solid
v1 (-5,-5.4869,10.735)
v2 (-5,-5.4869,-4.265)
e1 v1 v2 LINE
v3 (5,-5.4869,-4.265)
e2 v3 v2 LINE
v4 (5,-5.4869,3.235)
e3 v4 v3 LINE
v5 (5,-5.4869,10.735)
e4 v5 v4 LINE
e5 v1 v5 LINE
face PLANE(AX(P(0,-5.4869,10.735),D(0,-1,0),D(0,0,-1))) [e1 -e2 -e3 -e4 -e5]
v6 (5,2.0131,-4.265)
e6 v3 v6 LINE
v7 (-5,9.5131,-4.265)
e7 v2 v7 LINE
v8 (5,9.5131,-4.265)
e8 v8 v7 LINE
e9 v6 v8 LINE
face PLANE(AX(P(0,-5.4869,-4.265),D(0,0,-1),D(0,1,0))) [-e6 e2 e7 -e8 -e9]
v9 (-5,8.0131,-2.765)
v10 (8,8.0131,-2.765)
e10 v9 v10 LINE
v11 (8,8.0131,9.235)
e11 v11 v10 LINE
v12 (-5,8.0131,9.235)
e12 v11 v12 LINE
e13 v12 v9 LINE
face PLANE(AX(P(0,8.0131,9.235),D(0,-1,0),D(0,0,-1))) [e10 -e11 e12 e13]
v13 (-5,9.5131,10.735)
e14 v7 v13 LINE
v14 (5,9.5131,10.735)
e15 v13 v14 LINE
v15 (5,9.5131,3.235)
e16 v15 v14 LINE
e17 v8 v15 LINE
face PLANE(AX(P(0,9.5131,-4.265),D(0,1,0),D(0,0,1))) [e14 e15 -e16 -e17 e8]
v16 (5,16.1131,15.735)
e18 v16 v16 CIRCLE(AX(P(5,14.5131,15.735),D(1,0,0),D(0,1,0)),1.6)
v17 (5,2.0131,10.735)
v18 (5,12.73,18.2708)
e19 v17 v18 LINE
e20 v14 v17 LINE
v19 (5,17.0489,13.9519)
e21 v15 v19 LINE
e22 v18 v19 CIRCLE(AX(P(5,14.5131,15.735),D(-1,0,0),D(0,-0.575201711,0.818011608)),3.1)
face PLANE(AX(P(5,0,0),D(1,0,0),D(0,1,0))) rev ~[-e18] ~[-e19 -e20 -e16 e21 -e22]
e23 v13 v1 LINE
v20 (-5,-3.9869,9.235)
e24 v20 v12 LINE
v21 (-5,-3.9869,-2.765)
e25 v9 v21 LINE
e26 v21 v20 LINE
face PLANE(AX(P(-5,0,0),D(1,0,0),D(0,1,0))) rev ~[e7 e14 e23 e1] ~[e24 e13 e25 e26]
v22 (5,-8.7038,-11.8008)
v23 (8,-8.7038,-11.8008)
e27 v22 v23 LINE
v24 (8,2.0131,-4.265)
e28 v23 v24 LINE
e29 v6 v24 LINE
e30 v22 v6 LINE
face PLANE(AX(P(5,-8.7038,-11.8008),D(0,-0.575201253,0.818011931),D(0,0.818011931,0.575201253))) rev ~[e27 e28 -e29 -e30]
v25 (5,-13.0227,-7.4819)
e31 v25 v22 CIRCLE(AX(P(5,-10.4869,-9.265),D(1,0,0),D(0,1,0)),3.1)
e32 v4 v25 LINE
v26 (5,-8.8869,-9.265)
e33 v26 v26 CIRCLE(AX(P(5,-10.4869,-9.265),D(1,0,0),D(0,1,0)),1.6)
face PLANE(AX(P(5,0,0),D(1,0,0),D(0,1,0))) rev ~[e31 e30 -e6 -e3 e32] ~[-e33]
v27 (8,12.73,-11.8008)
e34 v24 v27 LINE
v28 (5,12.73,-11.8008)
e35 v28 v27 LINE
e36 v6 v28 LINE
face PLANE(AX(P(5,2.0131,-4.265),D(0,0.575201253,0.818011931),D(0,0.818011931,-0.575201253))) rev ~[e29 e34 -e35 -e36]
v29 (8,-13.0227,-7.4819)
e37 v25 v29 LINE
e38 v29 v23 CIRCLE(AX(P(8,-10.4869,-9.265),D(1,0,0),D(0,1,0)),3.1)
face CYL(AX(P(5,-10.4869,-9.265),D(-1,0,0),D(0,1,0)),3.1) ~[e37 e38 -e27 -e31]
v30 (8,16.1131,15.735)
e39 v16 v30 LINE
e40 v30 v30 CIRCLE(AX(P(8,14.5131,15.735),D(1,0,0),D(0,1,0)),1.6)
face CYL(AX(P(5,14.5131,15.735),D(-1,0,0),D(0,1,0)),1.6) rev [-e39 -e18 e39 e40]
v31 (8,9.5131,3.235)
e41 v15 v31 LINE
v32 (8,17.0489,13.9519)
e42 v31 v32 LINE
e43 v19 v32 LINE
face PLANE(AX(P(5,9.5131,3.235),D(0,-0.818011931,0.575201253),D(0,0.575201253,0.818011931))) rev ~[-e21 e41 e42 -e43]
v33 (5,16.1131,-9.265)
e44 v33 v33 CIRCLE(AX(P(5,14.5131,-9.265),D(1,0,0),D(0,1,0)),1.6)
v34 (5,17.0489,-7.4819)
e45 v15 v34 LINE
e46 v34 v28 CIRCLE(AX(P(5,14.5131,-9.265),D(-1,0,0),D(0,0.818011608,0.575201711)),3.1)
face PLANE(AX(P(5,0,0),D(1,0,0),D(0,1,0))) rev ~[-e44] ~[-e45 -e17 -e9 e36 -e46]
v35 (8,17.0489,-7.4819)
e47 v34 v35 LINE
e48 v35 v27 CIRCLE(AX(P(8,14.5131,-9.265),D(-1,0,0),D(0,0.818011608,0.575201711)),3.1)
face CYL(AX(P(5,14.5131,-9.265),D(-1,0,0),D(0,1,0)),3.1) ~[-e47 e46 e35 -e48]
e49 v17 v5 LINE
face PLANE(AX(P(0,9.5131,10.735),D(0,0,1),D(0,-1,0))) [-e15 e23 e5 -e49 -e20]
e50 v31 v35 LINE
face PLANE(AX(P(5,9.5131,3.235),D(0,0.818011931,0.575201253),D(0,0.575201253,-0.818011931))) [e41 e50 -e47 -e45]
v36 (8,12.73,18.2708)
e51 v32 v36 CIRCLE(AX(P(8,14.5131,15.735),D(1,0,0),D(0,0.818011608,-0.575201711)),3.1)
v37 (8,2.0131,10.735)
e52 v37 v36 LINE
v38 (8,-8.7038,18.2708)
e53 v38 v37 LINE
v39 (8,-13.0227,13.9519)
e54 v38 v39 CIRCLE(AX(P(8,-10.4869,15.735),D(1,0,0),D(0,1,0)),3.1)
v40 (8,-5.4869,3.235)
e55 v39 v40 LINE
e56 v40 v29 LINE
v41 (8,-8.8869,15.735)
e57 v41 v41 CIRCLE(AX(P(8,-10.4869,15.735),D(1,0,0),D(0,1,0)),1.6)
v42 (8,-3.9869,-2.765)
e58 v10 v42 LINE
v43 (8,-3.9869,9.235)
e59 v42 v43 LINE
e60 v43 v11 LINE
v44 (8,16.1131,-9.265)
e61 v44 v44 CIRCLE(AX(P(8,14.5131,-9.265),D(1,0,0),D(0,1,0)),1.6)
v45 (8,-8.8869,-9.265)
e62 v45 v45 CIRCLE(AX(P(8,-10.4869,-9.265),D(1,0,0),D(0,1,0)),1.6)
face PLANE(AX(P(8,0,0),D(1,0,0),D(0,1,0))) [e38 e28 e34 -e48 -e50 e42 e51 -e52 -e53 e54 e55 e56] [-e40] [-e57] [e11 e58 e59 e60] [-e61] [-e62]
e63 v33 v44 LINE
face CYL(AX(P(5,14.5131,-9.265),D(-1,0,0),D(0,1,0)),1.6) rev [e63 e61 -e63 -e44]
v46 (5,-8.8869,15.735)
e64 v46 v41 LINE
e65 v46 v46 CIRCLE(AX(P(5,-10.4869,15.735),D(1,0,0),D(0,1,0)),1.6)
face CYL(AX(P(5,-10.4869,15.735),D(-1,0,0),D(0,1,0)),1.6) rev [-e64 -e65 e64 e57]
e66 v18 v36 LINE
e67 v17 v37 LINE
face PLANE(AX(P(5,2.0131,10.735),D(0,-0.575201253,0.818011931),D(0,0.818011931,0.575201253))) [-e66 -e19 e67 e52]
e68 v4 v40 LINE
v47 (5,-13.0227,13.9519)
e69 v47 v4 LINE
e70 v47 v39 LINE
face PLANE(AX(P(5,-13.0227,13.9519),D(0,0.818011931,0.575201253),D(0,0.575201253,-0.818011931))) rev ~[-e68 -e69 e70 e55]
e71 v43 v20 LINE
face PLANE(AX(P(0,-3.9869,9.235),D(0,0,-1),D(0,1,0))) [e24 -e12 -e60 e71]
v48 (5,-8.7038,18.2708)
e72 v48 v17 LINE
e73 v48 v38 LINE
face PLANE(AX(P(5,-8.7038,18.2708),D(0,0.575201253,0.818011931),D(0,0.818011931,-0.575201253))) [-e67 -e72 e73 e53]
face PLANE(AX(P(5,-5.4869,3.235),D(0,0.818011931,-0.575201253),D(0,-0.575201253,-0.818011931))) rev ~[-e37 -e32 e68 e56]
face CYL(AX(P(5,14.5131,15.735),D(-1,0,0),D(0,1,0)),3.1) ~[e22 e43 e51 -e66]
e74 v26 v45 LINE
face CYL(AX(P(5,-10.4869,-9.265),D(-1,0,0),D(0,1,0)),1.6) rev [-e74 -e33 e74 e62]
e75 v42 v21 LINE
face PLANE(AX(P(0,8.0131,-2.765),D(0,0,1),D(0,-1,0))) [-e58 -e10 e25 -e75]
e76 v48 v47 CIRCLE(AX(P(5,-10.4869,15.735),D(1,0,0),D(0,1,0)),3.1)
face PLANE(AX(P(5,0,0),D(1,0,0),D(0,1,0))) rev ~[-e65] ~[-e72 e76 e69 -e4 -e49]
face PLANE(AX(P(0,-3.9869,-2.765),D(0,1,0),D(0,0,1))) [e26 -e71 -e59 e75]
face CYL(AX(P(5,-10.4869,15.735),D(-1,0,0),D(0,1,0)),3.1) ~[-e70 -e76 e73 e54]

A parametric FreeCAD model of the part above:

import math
import FreeCAD as App
import Part
import Sketcher


def add_polygon(sketch, points):
    """Adds a closed chain of lines whose ends are joined by coincident constraints."""
    first, n = sketch.GeometryCount, len(points)
    for a, b in zip(points, points[1:] + points[:1]):
        sketch.addGeometry(Part.LineSegment(App.Vector(*a, 0), App.Vector(*b, 0)), False)
    for i in range(n):
        sketch.addConstraint(Sketcher.Constraint("Coincident", first + i, 2, first + (i + 1) % n, 1))

doc = App.newDocument("Part")
params = doc.addObject("Spreadsheet::Sheet", "Params")
for row, (alias, value) in enumerate([
    ("sketch1_width", "15 mm"),
    ("sketch1_width2", "12 mm"),
    ("pad1_length", "5 mm"),
    ("sketch2_diameter", "3.2 mm"),
    ("sketch2_radius", "3.1 mm"),
    ("sketch2_width", "12 mm"),
    ("pad2_length", "3 mm"),
    ("sketch3_width", "15 mm"),
    ("sketch3_width2", "12 mm"),
    ("pad3_length", "5 mm"),
], start=1):
    params.set(f"A{row}", alias)
    params.set(f"B{row}", "=" + value)
    params.setAlias(f"B{row}", alias)

body = doc.addObject("PartDesign::Body", "Body")

sketch1 = doc.addObject("Sketcher::SketchObject", "Sketch")
body.addObject(sketch1)
sketch1.AttachmentSupport = (doc.YZ_Plane, [""])
sketch1.MapMode = "FlatFace"
add_polygon(sketch1, [(10, -4), (10, 11), (-5, 11), (-5, -4)])
add_polygon(sketch1, [(8, 9), (8, -3), (-4, -3), (-4, 9)])
sketch1.addConstraint([
    Sketcher.Constraint("Vertical", 0),
    Sketcher.Constraint("Horizontal", 1),
    Sketcher.Constraint("Vertical", 2),
    Sketcher.Constraint("Horizontal", 3),
    Sketcher.Constraint("Vertical", 4),
    Sketcher.Constraint("Horizontal", 5),
    Sketcher.Constraint("Vertical", 6),
    Sketcher.Constraint("Horizontal", 7),
    Sketcher.Constraint("Equal", 3, 0),
    Sketcher.Constraint("Equal", 7, 4),
    Sketcher.Constraint("DistanceX", 1, 2, 1, 1, 15.0),
    Sketcher.Constraint("DistanceX", 5, 2, 5, 1, 12.0),
    Sketcher.Constraint("DistanceX", 4, 2, 3, 2, 1.5),
    Sketcher.Constraint("DistanceY", 3, 2, 4, 2, 1.5),
    Sketcher.Constraint("DistanceX", -1, 1, 0, 2, 9.513),
    Sketcher.Constraint("DistanceY", -1, 1, 0, 2, 10.735),
])
sketch1.setExpression("Constraints[18]", "Params.sketch1_width")
sketch1.setExpression("Constraints[19]", "Params.sketch1_width2")
pad1 = doc.addObject("PartDesign::Pad", "Pad")
body.addObject(pad1)
pad1.Profile = sketch1
pad1.setExpression("Length", "Params.pad1_length")

sketch2 = doc.addObject("Sketcher::SketchObject", "Sketch001")
body.addObject(sketch2)
sketch2.AttachmentSupport = (doc.YZ_Plane, [""])
sketch2.MapMode = "FlatFace"
sketch2.AttachmentOffset = App.Placement(App.Vector(0, 0, 5), App.Rotation())
sketch2.addGeometry(Part.LineSegment(App.Vector(2, -4.3, 0), App.Vector(12.7, -11.8, 0)), False)
sketch2.addGeometry(Part.ArcOfCircle(Part.Circle(App.Vector(14.5, -9.3, 0), App.Vector(0, 0, 1), 3.1), math.radians(-125), math.radians(35)), False)
sketch2.addGeometry(Part.LineSegment(App.Vector(17, -7.5, 0), App.Vector(9.5, 3.2, 0)), False)
sketch2.addGeometry(Part.LineSegment(App.Vector(9.5, 3.2, 0), App.Vector(17, 14, 0)), False)
sketch2.addGeometry(Part.ArcOfCircle(Part.Circle(App.Vector(14.5, 15.7, 0), App.Vector(0, 0, 1), 3.1), math.radians(-35), math.radians(125)), False)
sketch2.addGeometry(Part.LineSegment(App.Vector(12.7, 18.3, 0), App.Vector(2, 10.7, 0)), False)
sketch2.addGeometry(Part.LineSegment(App.Vector(2, 10.7, 0), App.Vector(-8.7, 18.3, 0)), False)
sketch2.addGeometry(Part.ArcOfCircle(Part.Circle(App.Vector(-10.5, 15.7, 0), App.Vector(0, 0, 1), 3.1), math.radians(55), math.radians(215)), False)
sketch2.addGeometry(Part.LineSegment(App.Vector(-13, 14, 0), App.Vector(-5.5, 3.2, 0)), False)
sketch2.addGeometry(Part.LineSegment(App.Vector(-5.5, 3.2, 0), App.Vector(-13, -7.5, 0)), False)
sketch2.addGeometry(Part.ArcOfCircle(Part.Circle(App.Vector(-10.5, -9.3, 0), App.Vector(0, 0, 1), 3.1), math.radians(145), math.radians(305)), False)
sketch2.addGeometry(Part.LineSegment(App.Vector(-8.7, -11.8, 0), App.Vector(2, -4.3, 0)), False)
add_polygon(sketch2, [(-4, -2.8), (-4, 9.2), (8, 9.2), (8, -2.8)])
sketch2.addGeometry(Part.Circle(App.Vector(14.5, -9.3, 0), App.Vector(0, 0, 1), 1.6), False)
sketch2.addGeometry(Part.Circle(App.Vector(-10.5, -9.3, 0), App.Vector(0, 0, 1), 1.6), False)
sketch2.addGeometry(Part.Circle(App.Vector(-10.5, 15.7, 0), App.Vector(0, 0, 1), 1.6), False)
sketch2.addGeometry(Part.Circle(App.Vector(14.5, 15.7, 0), App.Vector(0, 0, 1), 1.6), False)
sketch2.addConstraint([
    Sketcher.Constraint("Tangent", 0, 2, 1, 1),
    Sketcher.Constraint("Tangent", 1, 2, 2, 1),
    Sketcher.Constraint("Coincident", 2, 2, 3, 1),
    Sketcher.Constraint("Tangent", 3, 2, 4, 1),
    Sketcher.Constraint("Tangent", 4, 2, 5, 1),
    Sketcher.Constraint("Coincident", 5, 2, 6, 1),
    Sketcher.Constraint("Tangent", 6, 2, 7, 1),
    Sketcher.Constraint("Tangent", 7, 2, 8, 1),
    Sketcher.Constraint("Coincident", 8, 2, 9, 1),
    Sketcher.Constraint("Tangent", 9, 2, 10, 1),
    Sketcher.Constraint("Tangent", 10, 2, 11, 1),
    Sketcher.Constraint("Coincident", 11, 2, 0, 1),
    Sketcher.Constraint("Vertical", 12),
    Sketcher.Constraint("Horizontal", 13),
    Sketcher.Constraint("Vertical", 14),
    Sketcher.Constraint("Horizontal", 15),
    Sketcher.Constraint("Coincident", 16, 3, 1, 3),
    Sketcher.Constraint("Coincident", 17, 3, 10, 3),
    Sketcher.Constraint("Coincident", 18, 3, 7, 3),
    Sketcher.Constraint("Coincident", 19, 3, 4, 3),
    Sketcher.Constraint("Equal", 1, 4),
    Sketcher.Constraint("Equal", 4, 7),
    Sketcher.Constraint("Equal", 7, 10),
    Sketcher.Constraint("Equal", 16, 17),
    Sketcher.Constraint("Equal", 17, 18),
    Sketcher.Constraint("Equal", 18, 19),
    Sketcher.Constraint("Perpendicular", 0, 3),
    Sketcher.Constraint("Perpendicular", 2, 5),
    Sketcher.Constraint("Perpendicular", 3, 6),
    Sketcher.Constraint("Perpendicular", 5, 8),
    Sketcher.Constraint("Perpendicular", 6, 9),
    Sketcher.Constraint("Perpendicular", 8, 11),
    Sketcher.Constraint("Horizontal", 4, 3, 7, 3),
    Sketcher.Constraint("Horizontal", 1, 3, 10, 3),
    Sketcher.Constraint("Horizontal", 4, 2, 6, 2),
    Sketcher.Constraint("Horizontal", 2, 2, 8, 2),
    Sketcher.Constraint("Vertical", 1, 3, 4, 3),
    Sketcher.Constraint("Equal", 15, 12),
    Sketcher.Constraint("Equal", 0, 2),
    Sketcher.Constraint("Diameter", 16, 3.2),
    Sketcher.Constraint("Radius", 1, 3.1),
    Sketcher.Constraint("DistanceY", 1, 3, 4, 3, 25.0),
    Sketcher.Constraint("DistanceX", 13, 1, 13, 2, 12.0),
    Sketcher.Constraint("DistanceX", 2, 2, 1, 3, 5.0),
    Sketcher.Constraint("DistanceX", 12, 2, 5, 2, 6.0),
    Sketcher.Constraint("DistanceY", 8, 2, 12, 2, 6.0),
    Sketcher.Constraint("DistanceX", -1, 1, 0, 2, 12.73),
    Sketcher.Constraint("DistanceY", 1, 3, -1, 1, 9.265),
])
sketch2.setExpression("Constraints[43]", "Params.sketch2_diameter")
sketch2.setExpression("Constraints[44]", "Params.sketch2_radius")
sketch2.setExpression("Constraints[46]", "Params.sketch2_width")
pad2 = doc.addObject("PartDesign::Pad", "Pad001")
body.addObject(pad2)
pad2.Profile = sketch2
pad2.setExpression("Length", "Params.pad2_length")

sketch3 = doc.addObject("Sketcher::SketchObject", "Sketch002")
body.addObject(sketch3)
sketch3.AttachmentSupport = (doc.YZ_Plane, [""])
sketch3.MapMode = "FlatFace"
add_polygon(sketch3, [(10, -4), (10, 11), (-5, 11), (-5, -4)])
add_polygon(sketch3, [(8, 9), (8, -3), (-4, -3), (-4, 9)])
sketch3.addConstraint([
    Sketcher.Constraint("Vertical", 0),
    Sketcher.Constraint("Horizontal", 1),
    Sketcher.Constraint("Vertical", 2),
    Sketcher.Constraint("Horizontal", 3),
    Sketcher.Constraint("Vertical", 4),
    Sketcher.Constraint("Horizontal", 5),
    Sketcher.Constraint("Vertical", 6),
    Sketcher.Constraint("Horizontal", 7),
    Sketcher.Constraint("Equal", 3, 0),
    Sketcher.Constraint("Equal", 7, 4),
    Sketcher.Constraint("DistanceX", 1, 2, 1, 1, 15.0),
    Sketcher.Constraint("DistanceX", 5, 2, 5, 1, 12.0),
    Sketcher.Constraint("DistanceX", 4, 2, 3, 2, 1.5),
    Sketcher.Constraint("DistanceY", 3, 2, 4, 2, 1.5),
    Sketcher.Constraint("DistanceX", -1, 1, 0, 2, 9.513),
    Sketcher.Constraint("DistanceY", -1, 1, 0, 2, 10.735),
])
sketch3.setExpression("Constraints[18]", "Params.sketch3_width")
sketch3.setExpression("Constraints[19]", "Params.sketch3_width2")
pad3 = doc.addObject("PartDesign::Pad", "Pad002")
body.addObject(pad3)
pad3.Profile = sketch3
pad3.setExpression("Length", "Params.pad3_length")
pad3.Reversed = True

doc.recompute()
